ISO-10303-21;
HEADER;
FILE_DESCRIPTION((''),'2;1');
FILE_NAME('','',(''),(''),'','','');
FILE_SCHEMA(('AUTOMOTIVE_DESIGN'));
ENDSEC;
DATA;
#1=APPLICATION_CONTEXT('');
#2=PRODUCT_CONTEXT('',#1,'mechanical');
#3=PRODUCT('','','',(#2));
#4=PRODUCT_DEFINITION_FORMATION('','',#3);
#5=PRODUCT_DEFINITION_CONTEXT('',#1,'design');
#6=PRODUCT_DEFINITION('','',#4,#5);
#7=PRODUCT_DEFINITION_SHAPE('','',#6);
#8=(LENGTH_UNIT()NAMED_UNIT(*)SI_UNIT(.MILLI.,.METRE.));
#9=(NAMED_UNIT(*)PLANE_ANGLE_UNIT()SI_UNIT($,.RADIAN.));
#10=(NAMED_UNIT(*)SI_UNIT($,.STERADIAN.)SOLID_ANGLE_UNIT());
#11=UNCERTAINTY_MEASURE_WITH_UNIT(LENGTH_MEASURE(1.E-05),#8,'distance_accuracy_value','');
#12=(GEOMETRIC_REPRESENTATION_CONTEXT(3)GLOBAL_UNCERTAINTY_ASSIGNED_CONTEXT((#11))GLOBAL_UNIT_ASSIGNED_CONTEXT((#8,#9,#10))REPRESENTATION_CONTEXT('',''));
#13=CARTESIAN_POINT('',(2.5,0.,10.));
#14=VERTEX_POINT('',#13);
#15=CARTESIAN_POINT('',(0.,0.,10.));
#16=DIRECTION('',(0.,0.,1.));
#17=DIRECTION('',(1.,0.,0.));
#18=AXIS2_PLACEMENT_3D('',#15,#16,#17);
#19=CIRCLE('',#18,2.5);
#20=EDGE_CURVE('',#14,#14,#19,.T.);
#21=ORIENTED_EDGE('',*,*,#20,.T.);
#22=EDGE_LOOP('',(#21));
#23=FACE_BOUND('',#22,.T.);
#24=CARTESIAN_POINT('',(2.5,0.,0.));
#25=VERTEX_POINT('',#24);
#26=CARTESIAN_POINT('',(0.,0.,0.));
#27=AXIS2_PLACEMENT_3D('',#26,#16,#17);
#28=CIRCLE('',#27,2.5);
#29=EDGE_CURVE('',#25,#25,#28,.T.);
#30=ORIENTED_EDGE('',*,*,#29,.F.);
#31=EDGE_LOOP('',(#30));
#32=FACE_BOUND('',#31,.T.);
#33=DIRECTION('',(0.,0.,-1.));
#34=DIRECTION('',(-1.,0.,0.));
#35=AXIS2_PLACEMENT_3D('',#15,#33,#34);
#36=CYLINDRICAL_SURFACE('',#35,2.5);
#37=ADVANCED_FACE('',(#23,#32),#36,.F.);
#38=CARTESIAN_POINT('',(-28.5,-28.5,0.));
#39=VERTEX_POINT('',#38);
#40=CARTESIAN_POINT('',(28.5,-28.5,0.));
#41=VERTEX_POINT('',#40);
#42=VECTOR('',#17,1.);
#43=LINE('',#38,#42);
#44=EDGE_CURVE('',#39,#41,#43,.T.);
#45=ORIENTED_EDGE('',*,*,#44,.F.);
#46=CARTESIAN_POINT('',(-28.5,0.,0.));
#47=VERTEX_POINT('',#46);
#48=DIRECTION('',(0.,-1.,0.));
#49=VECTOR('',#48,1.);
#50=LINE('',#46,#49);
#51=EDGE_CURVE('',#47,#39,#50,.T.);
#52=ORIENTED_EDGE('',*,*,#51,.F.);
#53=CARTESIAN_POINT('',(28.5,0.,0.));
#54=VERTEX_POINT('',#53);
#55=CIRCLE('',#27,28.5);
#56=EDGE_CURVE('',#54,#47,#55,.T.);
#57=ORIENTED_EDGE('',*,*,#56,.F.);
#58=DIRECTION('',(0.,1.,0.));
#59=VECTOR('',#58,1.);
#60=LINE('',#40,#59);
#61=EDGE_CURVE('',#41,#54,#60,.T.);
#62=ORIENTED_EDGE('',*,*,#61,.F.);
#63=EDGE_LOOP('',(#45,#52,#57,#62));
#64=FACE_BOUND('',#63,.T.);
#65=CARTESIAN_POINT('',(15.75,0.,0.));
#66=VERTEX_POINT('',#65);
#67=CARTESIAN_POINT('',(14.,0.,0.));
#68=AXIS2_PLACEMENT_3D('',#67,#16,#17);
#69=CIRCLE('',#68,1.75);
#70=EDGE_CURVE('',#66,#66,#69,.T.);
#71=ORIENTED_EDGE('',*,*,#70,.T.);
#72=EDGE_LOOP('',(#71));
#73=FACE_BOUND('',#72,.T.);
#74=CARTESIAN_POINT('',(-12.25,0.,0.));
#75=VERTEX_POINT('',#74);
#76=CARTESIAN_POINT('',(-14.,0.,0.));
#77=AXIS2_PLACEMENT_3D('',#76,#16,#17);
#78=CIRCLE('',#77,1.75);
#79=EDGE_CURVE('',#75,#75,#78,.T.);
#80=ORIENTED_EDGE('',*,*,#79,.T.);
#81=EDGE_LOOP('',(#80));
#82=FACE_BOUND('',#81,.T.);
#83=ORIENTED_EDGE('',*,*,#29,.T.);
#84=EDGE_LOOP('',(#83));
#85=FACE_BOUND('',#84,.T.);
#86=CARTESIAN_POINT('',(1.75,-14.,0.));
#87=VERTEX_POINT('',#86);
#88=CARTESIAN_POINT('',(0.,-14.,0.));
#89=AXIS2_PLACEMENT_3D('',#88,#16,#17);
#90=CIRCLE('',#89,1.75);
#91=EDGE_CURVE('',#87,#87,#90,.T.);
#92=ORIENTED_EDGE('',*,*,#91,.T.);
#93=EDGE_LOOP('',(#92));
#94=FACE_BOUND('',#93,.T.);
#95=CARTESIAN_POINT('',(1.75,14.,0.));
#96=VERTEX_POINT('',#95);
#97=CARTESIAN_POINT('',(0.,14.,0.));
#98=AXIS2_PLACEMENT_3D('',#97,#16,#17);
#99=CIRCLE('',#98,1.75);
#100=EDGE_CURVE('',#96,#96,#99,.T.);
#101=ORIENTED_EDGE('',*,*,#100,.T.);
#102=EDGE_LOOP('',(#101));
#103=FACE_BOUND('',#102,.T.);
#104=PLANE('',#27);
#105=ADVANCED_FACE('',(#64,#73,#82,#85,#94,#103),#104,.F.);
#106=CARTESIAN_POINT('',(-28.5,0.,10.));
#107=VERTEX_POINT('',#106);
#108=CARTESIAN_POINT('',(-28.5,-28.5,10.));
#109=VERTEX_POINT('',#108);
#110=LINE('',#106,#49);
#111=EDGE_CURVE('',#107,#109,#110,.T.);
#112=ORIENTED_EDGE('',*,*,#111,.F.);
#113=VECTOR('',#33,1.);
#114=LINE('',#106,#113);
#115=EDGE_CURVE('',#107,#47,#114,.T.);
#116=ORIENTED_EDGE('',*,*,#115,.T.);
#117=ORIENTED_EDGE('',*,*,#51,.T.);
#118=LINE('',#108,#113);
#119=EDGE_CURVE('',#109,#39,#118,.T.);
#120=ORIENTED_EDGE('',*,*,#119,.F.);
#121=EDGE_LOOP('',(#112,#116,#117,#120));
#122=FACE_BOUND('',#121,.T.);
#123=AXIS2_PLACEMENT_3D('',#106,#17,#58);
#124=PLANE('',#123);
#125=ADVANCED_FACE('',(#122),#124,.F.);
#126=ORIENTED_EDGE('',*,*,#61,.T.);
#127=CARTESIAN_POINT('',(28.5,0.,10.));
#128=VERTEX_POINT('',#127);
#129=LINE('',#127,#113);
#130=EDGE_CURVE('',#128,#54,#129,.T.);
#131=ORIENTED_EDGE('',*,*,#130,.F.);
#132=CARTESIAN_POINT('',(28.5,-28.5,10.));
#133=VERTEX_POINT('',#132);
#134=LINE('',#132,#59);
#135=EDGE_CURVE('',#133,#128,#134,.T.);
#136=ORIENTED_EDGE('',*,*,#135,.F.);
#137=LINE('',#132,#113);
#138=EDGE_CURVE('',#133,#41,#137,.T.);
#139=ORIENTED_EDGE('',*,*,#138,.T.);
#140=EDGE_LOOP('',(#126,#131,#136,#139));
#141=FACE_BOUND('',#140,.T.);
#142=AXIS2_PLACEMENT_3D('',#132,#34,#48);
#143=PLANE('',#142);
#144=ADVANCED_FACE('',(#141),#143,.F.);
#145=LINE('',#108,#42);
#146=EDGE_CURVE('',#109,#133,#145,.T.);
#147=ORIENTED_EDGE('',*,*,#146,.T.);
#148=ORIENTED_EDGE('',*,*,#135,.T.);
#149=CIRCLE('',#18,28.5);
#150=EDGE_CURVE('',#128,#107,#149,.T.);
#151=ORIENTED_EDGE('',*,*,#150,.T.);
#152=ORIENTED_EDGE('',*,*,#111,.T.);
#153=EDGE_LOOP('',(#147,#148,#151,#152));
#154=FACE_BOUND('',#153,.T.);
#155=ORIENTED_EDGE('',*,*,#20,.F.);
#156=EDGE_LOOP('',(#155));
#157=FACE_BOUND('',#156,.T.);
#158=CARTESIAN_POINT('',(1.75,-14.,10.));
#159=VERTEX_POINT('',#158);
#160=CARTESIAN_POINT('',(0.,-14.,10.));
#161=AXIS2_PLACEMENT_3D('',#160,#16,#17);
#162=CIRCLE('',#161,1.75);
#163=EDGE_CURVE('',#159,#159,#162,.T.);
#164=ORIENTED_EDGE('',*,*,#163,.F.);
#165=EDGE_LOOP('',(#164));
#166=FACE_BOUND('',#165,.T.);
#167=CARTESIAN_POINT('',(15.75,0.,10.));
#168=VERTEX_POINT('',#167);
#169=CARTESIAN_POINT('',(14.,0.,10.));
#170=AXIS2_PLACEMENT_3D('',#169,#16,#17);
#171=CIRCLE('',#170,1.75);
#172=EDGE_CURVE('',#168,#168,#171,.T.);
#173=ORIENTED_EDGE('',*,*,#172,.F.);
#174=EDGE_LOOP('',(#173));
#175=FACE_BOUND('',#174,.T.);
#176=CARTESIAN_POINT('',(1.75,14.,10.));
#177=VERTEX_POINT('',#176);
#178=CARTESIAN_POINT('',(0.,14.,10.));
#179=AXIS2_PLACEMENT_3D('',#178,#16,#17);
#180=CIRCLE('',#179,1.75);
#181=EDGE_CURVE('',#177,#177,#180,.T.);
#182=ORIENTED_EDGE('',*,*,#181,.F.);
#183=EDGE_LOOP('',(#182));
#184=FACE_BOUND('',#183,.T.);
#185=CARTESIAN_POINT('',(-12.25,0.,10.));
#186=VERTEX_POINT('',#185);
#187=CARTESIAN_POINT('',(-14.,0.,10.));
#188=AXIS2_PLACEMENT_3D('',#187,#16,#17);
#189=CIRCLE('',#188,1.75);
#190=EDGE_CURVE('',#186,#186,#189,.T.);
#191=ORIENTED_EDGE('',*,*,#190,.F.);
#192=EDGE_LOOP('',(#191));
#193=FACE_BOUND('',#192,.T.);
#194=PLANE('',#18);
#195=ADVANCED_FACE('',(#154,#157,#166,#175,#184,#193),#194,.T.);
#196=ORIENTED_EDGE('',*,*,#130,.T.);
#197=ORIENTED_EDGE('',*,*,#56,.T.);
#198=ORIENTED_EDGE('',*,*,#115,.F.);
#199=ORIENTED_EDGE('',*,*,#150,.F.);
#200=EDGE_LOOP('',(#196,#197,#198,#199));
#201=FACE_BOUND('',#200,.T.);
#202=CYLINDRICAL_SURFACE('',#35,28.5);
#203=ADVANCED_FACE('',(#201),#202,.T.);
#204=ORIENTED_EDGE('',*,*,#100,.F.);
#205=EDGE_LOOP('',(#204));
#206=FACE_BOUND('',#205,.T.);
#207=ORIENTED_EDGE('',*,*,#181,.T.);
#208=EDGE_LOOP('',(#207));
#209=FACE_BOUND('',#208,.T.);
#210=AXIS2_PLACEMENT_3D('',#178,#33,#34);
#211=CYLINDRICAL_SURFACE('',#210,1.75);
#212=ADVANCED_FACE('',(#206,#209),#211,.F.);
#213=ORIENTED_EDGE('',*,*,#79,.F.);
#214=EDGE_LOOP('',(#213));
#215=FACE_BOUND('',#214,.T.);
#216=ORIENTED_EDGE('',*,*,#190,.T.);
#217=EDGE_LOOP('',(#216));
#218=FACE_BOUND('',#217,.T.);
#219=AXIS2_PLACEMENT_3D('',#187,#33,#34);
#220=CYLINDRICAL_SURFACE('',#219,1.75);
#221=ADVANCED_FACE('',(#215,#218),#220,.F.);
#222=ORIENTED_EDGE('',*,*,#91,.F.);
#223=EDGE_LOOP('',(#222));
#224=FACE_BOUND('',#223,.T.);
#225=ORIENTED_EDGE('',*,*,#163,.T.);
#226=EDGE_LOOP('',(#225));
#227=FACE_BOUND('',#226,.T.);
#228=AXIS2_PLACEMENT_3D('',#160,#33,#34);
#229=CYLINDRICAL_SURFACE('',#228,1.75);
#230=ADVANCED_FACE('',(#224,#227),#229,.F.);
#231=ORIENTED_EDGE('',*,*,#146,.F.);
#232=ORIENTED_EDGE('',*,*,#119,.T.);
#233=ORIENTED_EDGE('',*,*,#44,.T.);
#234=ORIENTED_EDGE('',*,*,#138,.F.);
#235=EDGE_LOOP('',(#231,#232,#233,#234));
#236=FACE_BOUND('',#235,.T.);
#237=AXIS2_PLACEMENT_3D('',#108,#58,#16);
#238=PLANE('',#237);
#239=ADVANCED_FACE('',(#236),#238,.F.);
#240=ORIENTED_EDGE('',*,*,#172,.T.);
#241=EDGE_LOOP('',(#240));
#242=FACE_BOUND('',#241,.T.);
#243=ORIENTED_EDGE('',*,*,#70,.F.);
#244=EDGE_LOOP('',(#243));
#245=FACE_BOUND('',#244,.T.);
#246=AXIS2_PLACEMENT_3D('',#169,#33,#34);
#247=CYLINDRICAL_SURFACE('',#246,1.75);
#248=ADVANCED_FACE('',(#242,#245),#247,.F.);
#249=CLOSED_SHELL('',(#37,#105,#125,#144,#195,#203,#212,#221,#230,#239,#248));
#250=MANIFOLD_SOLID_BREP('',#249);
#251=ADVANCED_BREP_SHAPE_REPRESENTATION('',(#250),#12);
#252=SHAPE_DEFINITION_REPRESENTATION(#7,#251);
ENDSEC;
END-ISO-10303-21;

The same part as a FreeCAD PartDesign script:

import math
import FreeCAD as App
import Part
import Sketcher

V = App.Vector
Q = App.Units.Quantity

doc = App.newDocument("Part")
body = doc.addObject("PartDesign::Body", "Body")

# Sketch on XY plane
sketch1 = body.newObject("Sketcher::SketchObject", "Sketch")
sketch1.AttachmentSupport = (doc.getObject("XY_Plane"), [""])
sketch1.MapMode = "FlatFace"
sketch1.addGeometry([
    Part.LineSegment(V(-28.5, 0, 0), V(-28.5, -28.5, 0)),  # 0
    Part.LineSegment(V(-28.5, -28.5, 0), V(28.5, -28.5, 0)),  # 1
    Part.LineSegment(V(28.5, -28.5, 0), V(28.5, 0, 0)),  # 2
    Part.ArcOfCircle(Part.Circle(V(0, 0, 0), V(0, 0, 1), 28.5), math.radians(0), math.radians(180)),  # 3
    Part.Circle(V(0, -14, 0), V(0, 0, 1), 1.75),  # 4
    Part.Circle(V(-14, 0, 0), V(0, 0, 1), 1.75),  # 5
    Part.Circle(V(0, 0, 0), V(0, 0, 1), 2.5),  # 6
    Part.Circle(V(14, 0, 0), V(0, 0, 1), 1.75),  # 7
    Part.Circle(V(0, 14, 0), V(0, 0, 1), 1.75),  # 8
], False)
sketch1.addConstraint([
    Sketcher.Constraint("Coincident", 0, 2, 1, 1),
    Sketcher.Constraint("Coincident", 1, 2, 2, 1),
    Sketcher.Constraint("Tangent", 2, 2, 3, 1),
    Sketcher.Constraint("Tangent", 3, 2, 0, 1),
    Sketcher.Constraint("Vertical", 0),
    Sketcher.Constraint("Horizontal", 1),
    Sketcher.Constraint("Vertical", 2),
    Sketcher.Constraint("Coincident", 3, 3, -1, 1),
    Sketcher.Constraint("Coincident", 6, 3, -1, 1),
    Sketcher.Constraint("Equal", 4, 5),
    Sketcher.Constraint("Equal", 5, 7),
    Sketcher.Constraint("Equal", 7, 8),
    Sketcher.Constraint("Symmetric", 5, 3, 7, 3, -1, 1),
    Sketcher.Constraint("Symmetric", 4, 3, 8, 3, -1, 1),
    Sketcher.Constraint("PointOnObject", 4, 3, -2),
    Sketcher.Constraint("PointOnObject", 5, 3, -1),
    Sketcher.Constraint("Diameter", 6, Q("5 mm")),
    Sketcher.Constraint("Diameter", 4, Q("3.5 mm")),
    Sketcher.Constraint("Radius", 3, Q("28.5 mm")),
    Sketcher.Constraint("DistanceY", 0, 2, 0, 1, Q("28.5 mm")),
    Sketcher.Constraint("DistanceY", 4, 3, -1, 1, Q("14 mm")),
    Sketcher.Constraint("DistanceX", 5, 3, -1, 1, Q("14 mm")),
])
pad1 = body.newObject("PartDesign::Pad", "Pad")
pad1.Profile = sketch1
pad1.Length = 10

doc.recompute()
